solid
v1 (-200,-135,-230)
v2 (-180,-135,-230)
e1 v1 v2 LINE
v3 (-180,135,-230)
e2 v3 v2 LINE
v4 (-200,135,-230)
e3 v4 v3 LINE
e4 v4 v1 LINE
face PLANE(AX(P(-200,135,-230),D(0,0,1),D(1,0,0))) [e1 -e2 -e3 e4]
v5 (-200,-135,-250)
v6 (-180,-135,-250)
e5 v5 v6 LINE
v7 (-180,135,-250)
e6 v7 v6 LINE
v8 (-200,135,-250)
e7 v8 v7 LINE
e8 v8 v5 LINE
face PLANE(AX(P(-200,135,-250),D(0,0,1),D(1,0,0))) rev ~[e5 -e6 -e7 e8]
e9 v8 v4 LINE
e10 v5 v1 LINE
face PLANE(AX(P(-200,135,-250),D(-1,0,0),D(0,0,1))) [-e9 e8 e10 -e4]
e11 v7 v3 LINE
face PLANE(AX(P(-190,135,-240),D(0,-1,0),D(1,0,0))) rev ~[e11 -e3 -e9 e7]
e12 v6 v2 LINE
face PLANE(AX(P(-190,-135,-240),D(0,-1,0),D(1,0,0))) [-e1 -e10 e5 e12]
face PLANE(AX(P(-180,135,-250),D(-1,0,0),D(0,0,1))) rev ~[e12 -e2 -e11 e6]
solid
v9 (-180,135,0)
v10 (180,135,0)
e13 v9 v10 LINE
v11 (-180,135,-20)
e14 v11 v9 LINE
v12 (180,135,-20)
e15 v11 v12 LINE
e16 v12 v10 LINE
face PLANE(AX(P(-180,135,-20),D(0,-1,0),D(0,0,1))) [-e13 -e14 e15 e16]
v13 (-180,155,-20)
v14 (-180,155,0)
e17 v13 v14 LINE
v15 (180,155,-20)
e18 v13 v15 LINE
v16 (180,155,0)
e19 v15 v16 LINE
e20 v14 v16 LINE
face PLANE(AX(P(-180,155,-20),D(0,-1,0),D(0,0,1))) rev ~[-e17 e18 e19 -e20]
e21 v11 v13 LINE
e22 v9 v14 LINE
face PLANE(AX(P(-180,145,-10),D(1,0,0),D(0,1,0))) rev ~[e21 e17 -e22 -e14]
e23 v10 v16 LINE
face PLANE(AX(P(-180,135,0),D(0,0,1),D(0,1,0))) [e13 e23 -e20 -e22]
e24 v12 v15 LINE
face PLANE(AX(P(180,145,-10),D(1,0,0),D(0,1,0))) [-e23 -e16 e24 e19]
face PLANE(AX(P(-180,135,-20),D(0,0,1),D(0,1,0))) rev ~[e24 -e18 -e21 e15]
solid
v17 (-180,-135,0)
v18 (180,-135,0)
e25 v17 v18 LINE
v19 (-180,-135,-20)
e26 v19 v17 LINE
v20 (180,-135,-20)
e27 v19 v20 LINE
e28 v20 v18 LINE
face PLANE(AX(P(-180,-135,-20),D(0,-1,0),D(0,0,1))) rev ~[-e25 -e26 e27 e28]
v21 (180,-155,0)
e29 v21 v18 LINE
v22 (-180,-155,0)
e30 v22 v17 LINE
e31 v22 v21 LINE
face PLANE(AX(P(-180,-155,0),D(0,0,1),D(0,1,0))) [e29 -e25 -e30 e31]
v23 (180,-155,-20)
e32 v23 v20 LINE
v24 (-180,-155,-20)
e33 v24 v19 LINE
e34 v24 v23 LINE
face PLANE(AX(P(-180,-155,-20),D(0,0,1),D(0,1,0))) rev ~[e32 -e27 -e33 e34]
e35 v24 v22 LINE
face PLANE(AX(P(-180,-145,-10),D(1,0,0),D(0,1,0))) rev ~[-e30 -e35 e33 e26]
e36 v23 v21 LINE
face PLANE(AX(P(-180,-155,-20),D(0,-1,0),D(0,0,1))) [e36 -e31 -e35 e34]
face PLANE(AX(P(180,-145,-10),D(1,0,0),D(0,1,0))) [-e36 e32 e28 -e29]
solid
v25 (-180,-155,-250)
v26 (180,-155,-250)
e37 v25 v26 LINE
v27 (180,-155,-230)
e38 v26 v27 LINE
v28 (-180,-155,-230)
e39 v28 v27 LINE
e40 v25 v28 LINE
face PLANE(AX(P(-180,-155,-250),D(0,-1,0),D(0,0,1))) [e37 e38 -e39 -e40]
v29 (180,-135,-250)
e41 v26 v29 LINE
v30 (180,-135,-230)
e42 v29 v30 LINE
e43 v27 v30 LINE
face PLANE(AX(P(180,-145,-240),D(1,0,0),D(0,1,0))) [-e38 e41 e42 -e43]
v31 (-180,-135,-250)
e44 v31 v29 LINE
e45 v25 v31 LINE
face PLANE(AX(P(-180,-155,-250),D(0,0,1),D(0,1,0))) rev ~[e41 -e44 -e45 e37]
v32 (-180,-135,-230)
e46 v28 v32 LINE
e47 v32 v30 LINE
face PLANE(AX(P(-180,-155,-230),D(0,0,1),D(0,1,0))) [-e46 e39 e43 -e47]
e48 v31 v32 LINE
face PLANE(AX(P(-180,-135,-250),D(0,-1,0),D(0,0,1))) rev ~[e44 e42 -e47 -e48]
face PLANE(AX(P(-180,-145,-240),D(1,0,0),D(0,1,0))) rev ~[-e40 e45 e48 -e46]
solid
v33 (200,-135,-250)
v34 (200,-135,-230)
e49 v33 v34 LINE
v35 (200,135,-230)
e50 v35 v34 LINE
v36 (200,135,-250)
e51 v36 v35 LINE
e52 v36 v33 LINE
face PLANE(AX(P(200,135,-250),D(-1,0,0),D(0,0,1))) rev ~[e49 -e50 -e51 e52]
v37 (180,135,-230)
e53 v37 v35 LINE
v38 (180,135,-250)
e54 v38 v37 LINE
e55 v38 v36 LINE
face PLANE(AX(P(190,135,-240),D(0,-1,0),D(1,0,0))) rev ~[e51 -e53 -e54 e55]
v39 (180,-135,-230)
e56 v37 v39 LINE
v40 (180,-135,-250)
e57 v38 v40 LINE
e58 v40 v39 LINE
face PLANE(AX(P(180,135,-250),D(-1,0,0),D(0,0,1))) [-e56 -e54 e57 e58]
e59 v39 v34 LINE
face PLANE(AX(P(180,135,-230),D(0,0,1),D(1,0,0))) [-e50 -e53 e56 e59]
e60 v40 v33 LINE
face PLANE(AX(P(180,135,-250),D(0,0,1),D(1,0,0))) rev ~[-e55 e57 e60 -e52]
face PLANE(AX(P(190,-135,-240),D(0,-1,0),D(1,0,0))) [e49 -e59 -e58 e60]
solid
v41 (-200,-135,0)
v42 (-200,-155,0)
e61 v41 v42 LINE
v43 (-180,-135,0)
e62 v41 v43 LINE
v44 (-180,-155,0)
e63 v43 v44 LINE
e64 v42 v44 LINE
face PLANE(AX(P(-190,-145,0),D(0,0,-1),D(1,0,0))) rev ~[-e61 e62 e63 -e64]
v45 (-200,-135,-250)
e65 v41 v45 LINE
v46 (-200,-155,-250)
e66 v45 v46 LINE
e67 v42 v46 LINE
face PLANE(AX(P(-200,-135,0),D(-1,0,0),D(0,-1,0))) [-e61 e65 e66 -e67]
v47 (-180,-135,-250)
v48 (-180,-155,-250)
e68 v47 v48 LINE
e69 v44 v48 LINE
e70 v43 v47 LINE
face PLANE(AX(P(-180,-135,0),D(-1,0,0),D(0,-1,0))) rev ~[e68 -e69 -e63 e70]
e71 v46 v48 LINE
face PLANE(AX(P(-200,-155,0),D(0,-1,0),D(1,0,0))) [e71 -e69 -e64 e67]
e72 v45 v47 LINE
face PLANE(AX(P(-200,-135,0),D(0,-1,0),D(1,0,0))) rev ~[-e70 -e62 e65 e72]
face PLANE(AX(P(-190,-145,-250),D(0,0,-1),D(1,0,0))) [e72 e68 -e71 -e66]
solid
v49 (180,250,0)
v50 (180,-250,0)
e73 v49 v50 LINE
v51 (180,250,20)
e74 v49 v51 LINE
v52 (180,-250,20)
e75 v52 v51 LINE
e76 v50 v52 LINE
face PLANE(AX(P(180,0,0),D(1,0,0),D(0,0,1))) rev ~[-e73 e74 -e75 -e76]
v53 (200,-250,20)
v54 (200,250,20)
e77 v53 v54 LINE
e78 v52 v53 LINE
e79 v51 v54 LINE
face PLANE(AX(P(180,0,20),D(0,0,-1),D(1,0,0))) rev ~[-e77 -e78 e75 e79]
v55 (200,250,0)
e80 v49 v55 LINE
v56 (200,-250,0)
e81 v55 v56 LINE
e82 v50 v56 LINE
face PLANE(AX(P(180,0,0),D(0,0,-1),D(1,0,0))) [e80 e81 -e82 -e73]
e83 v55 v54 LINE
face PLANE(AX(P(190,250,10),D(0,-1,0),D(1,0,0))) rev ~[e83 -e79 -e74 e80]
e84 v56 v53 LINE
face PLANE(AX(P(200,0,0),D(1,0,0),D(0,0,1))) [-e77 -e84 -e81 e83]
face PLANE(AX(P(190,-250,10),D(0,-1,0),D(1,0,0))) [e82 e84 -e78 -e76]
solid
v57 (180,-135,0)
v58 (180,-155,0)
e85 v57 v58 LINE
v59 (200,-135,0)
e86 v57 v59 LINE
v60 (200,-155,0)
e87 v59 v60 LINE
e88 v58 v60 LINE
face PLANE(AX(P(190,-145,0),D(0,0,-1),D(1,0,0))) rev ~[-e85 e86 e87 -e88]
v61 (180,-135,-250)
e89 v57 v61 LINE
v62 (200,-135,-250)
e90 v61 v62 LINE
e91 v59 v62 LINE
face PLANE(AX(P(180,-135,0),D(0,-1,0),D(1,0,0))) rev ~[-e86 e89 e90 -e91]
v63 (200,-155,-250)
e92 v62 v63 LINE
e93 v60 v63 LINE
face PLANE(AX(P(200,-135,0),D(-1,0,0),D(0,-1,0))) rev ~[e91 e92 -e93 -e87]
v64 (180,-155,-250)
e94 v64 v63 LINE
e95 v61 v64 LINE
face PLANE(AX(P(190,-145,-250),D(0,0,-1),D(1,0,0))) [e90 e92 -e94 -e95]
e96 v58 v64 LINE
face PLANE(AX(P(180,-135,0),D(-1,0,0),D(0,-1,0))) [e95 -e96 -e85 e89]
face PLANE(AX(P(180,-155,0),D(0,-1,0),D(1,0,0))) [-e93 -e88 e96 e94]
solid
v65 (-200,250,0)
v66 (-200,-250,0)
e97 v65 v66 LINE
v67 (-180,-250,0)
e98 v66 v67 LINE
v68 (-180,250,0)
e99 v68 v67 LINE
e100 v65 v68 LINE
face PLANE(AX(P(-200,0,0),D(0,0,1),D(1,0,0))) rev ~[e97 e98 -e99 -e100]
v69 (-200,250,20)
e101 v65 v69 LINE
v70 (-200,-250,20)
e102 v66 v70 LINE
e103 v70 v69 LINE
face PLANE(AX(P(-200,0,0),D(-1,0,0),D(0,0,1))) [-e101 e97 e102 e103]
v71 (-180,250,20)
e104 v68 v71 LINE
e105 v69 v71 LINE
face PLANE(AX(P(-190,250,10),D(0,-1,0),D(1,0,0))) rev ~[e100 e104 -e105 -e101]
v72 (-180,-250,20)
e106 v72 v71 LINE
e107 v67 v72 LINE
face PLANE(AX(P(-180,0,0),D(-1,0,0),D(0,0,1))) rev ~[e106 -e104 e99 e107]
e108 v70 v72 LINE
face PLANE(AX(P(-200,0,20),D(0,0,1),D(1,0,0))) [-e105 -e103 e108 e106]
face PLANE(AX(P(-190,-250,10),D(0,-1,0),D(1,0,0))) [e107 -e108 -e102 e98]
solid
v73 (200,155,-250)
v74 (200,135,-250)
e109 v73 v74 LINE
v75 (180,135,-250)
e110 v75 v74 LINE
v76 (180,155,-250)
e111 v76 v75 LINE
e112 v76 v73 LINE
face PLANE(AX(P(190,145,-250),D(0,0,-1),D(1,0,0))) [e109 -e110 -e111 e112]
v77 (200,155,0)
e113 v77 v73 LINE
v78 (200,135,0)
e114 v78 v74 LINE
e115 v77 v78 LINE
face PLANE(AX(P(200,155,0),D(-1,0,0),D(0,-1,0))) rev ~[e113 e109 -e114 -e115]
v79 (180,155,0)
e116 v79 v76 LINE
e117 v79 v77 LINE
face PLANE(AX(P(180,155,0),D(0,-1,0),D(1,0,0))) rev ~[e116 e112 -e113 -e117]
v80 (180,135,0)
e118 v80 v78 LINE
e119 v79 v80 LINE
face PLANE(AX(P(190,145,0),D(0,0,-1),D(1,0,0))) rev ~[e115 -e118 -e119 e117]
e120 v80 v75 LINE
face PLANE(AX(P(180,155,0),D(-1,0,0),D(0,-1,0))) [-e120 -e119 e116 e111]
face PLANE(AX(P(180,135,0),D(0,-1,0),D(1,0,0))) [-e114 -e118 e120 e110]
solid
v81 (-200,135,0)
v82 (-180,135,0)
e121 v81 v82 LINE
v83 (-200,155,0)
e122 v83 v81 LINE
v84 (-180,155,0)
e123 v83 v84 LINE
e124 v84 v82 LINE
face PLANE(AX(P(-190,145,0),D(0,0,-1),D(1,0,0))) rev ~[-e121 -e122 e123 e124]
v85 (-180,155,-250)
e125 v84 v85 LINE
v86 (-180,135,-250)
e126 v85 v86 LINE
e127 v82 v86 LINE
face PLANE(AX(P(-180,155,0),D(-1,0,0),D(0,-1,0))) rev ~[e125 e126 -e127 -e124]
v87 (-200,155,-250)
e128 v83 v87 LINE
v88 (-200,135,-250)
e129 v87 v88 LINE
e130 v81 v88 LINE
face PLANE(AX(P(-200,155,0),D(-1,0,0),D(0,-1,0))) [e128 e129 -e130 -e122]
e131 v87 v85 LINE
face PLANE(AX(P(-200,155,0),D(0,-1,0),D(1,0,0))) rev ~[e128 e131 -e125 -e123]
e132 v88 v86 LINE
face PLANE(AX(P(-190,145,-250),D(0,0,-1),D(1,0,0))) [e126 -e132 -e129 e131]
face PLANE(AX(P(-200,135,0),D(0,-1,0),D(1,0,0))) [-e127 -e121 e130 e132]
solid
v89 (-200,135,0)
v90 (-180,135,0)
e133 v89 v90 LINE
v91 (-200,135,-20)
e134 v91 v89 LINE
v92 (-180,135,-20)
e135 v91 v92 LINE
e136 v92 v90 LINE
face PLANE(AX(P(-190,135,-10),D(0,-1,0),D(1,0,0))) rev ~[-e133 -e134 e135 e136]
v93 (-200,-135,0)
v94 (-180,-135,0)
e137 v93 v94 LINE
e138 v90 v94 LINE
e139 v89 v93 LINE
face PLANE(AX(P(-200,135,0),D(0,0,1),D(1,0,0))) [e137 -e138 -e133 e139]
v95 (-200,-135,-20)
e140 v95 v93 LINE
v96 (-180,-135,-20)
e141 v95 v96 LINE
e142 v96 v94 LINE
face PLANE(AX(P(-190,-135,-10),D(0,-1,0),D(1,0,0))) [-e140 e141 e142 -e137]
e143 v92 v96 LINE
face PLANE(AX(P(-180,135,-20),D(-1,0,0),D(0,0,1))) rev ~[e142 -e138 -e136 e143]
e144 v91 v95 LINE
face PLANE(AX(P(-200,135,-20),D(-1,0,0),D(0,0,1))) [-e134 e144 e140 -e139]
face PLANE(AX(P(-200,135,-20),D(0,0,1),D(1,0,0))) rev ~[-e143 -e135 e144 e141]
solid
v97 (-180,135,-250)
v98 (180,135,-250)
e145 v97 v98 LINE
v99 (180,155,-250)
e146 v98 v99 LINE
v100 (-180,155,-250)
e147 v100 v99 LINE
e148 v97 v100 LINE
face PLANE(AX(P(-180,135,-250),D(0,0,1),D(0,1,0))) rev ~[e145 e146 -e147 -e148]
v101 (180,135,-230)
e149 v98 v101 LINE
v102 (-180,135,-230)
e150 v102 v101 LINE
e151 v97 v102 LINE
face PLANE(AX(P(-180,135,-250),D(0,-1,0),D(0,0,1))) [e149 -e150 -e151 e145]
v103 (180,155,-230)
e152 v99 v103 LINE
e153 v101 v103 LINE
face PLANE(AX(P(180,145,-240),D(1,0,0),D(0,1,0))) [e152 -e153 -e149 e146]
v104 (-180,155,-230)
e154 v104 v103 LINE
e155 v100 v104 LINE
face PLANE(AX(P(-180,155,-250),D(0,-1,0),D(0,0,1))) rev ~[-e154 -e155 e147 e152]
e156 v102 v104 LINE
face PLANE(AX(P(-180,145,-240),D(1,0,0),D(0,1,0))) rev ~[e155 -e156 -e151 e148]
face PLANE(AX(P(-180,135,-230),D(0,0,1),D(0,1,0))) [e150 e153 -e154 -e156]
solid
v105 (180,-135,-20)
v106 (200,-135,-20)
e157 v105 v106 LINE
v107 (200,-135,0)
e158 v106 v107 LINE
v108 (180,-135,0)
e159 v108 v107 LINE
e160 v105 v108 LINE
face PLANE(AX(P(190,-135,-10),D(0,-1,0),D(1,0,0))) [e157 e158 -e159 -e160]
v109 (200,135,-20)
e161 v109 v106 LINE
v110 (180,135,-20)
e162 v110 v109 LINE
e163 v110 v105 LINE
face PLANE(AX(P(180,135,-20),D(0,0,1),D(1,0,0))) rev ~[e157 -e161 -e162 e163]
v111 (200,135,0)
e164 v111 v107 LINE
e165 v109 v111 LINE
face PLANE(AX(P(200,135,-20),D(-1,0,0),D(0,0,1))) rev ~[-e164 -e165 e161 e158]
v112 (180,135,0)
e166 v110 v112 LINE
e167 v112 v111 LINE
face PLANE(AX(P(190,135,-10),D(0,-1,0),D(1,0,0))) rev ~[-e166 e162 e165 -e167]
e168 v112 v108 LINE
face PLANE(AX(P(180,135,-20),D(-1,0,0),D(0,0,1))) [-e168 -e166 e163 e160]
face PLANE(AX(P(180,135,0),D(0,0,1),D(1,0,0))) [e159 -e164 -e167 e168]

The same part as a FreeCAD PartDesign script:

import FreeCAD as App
import Part
import Sketcher

V = App.Vector
Q = App.Units.Quantity


def add_polygon(sketch, points):
    """Adds a closed chain of lines whose ends are joined by coincident constraints."""
    first, n = sketch.GeometryCount, len(points)
    for a, b in zip(points, points[1:] + points[:1]):
        sketch.addGeometry(Part.LineSegment(App.Vector(*a, 0), App.Vector(*b, 0)), False)
    for i in range(n):
        sketch.addConstraint(Sketcher.Constraint("Coincident", first + i, 2, first + (i + 1) % n, 1))

doc = App.newDocument("Part")
body = doc.addObject("PartDesign::Body", "Body")
body.AllowCompound = True

# Sketch on XZ plane
sketch1 = body.newObject("Sketcher::SketchObject", "Sketch")
sketch1.AttachmentSupport = (doc.getObject("XZ_Plane"), [""])
sketch1.MapMode = "FlatFace"
add_polygon(sketch1, [(-200, 20), (-200, 0), (-180, 0), (-180, 20)])  # lines 0-3
add_polygon(sketch1, [(180, 20), (180, 0), (200, 0), (200, 20)])  # lines 4-7
sketch1.addConstraint(Sketcher.Constraint("Vertical", 0))
sketch1.addConstraint(Sketcher.Constraint("Horizontal", 1))
sketch1.addConstraint(Sketcher.Constraint("Vertical", 2))
sketch1.addConstraint(Sketcher.Constraint("Horizontal", 3))
sketch1.addConstraint(Sketcher.Constraint("Vertical", 4))
sketch1.addConstraint(Sketcher.Constraint("Horizontal", 5))
sketch1.addConstraint(Sketcher.Constraint("Vertical", 6))
sketch1.addConstraint(Sketcher.Constraint("Horizontal", 7))
sketch1.addConstraint(Sketcher.Constraint("Symmetric", 1, 2, 4, 2, -1, 1))
sketch1.addConstraint(Sketcher.Constraint("Symmetric", 0, 2, 5, 2, -2))
sketch1.addConstraint(Sketcher.Constraint("Horizontal", 3, 2, 6, 2))
sketch1.addConstraint(Sketcher.Constraint("Equal", 7, 0))
sketch1.addConstraint(Sketcher.Constraint("DistanceX", 1, 1, 1, 2, Q("20 mm")))
sketch1.addConstraint(Sketcher.Constraint("DistanceX", 0, 2, -1, 1, Q("200 mm")))
pad1 = body.newObject("PartDesign::Pad", "Pad")
pad1.Profile = sketch1
pad1.Length = 500
pad1.Midplane = True
body2 = doc.addObject("PartDesign::Body", "Body001")
body2.AllowCompound = True

# Sketch on XY plane
sketch2 = body2.newObject("Sketcher::SketchObject", "Sketch001")
sketch2.AttachmentSupport = (doc.getObject("XY_Plane001"), [""])
sketch2.MapMode = "FlatFace"
add_polygon(sketch2, [(-200, -155), (-200, -135), (-180, -135), (-180, -155)])  # lines 0-3
add_polygon(sketch2, [(180, -155), (180, -135), (200, -135), (200, -155)])  # lines 4-7
add_polygon(sketch2, [(180, 135), (180, 155), (200, 155), (200, 135)])  # lines 8-11
add_polygon(sketch2, [(-200, 135), (-200, 155), (-180, 155), (-180, 135)])  # lines 12-15
sketch2.addConstraint(Sketcher.Constraint("Vertical", 0))
sketch2.addConstraint(Sketcher.Constraint("Horizontal", 1))
sketch2.addConstraint(Sketcher.Constraint("Vertical", 2))
sketch2.addConstraint(Sketcher.Constraint("Horizontal", 3))
sketch2.addConstraint(Sketcher.Constraint("Vertical", 4))
sketch2.addConstraint(Sketcher.Constraint("Horizontal", 5))
sketch2.addConstraint(Sketcher.Constraint("Vertical", 6))
sketch2.addConstraint(Sketcher.Constraint("Horizontal", 7))
sketch2.addConstraint(Sketcher.Constraint("Vertical", 8))
sketch2.addConstraint(Sketcher.Constraint("Horizontal", 9))
sketch2.addConstraint(Sketcher.Constraint("Vertical", 10))
sketch2.addConstraint(Sketcher.Constraint("Horizontal", 11))
sketch2.addConstraint(Sketcher.Constraint("Vertical", 12))
sketch2.addConstraint(Sketcher.Constraint("Horizontal", 13))
sketch2.addConstraint(Sketcher.Constraint("Vertical", 14))
sketch2.addConstraint(Sketcher.Constraint("Horizontal", 15))
sketch2.addConstraint(Sketcher.Constraint("Symmetric", 2, 2, 8, 2, -1, 1))
sketch2.addConstraint(Sketcher.Constraint("Symmetric", 0, 2, 10, 2, -1, 1))
sketch2.addConstraint(Sketcher.Constraint("Symmetric", 6, 2, 12, 2, -1, 1))
sketch2.addConstraint(Sketcher.Constraint("Symmetric", 4, 2, 14, 2, -1, 1))
sketch2.addConstraint(Sketcher.Constraint("Symmetric", 1, 2, 4, 2, -2))
sketch2.addConstraint(Sketcher.Constraint("Symmetric", 3, 2, 6, 2, -2))
sketch2.addConstraint(Sketcher.Constraint("Equal", 15, 0))
sketch2.addConstraint(Sketcher.Constraint("DistanceX", 1, 1, 1, 2, Q("20 mm")))
sketch2.addConstraint(Sketcher.Constraint("DistanceX", 0, 2, -1, 1, Q("200 mm")))
sketch2.addConstraint(Sketcher.Constraint("DistanceY", 0, 2, -1, 1, Q("135 mm")))
pad2 = body2.newObject("PartDesign::Pad", "Pad001")
pad2.Profile = sketch2
pad2.Length = 250
pad2.Reversed = True
body3 = doc.addObject("PartDesign::Body", "Body002")
body3.AllowCompound = True

# Sketch on XZ plane
sketch3 = body3.newObject("Sketcher::SketchObject", "Sketch002")
sketch3.AttachmentSupport = (doc.getObject("XZ_Plane002"), [""])
sketch3.MapMode = "FlatFace"
sketch3.AttachmentOffset = App.Placement(V(0, 0, -135), App.Rotation())
add_polygon(sketch3, [(-200, 0), (-200, -20), (-180, -20), (-180, 0)])  # lines 0-3
add_polygon(sketch3, [(-200, -230), (-200, -250), (-180, -250), (-180, -230)])  # lines 4-7
add_polygon(sketch3, [(180, 0), (180, -20), (200, -20), (200, 0)])  # lines 8-11
add_polygon(sketch3, [(180, -230), (180, -250), (200, -250), (200, -230)])  # lines 12-15
sketch3.addConstraint(Sketcher.Constraint("Vertical", 0))
sketch3.addConstraint(Sketcher.Constraint("Horizontal", 1))
sketch3.addConstraint(Sketcher.Constraint("Vertical", 2))
sketch3.addConstraint(Sketcher.Constraint("Horizontal", 3))
sketch3.addConstraint(Sketcher.Constraint("Vertical", 4))
sketch3.addConstraint(Sketcher.Constraint("Horizontal", 5))
sketch3.addConstraint(Sketcher.Constraint("Vertical", 6))
sketch3.addConstraint(Sketcher.Constraint("Horizontal", 7))
sketch3.addConstraint(Sketcher.Constraint("Vertical", 8))
sketch3.addConstraint(Sketcher.Constraint("Horizontal", 9))
sketch3.addConstraint(Sketcher.Constraint("Vertical", 10))
sketch3.addConstraint(Sketcher.Constraint("Horizontal", 11))
sketch3.addConstraint(Sketcher.Constraint("Vertical", 12))
sketch3.addConstraint(Sketcher.Constraint("Horizontal", 13))
sketch3.addConstraint(Sketcher.Constraint("Vertical", 14))
sketch3.addConstraint(Sketcher.Constraint("Horizontal", 15))
sketch3.addConstraint(Sketcher.Constraint("Symmetric", 3, 2, 10, 2, -1, 1))
sketch3.addConstraint(Sketcher.Constraint("Symmetric", 1, 2, 8, 2, -2))
sketch3.addConstraint(Sketcher.Constraint("Symmetric", 5, 2, 12, 2, -2))
sketch3.addConstraint(Sketcher.Constraint("Symmetric", 7, 2, 14, 2, -2))
sketch3.addConstraint(Sketcher.Constraint("PointOnObject", 2, 2, -1))
sketch3.addConstraint(Sketcher.Constraint("Vertical", 3, 2, 4, 2))
sketch3.addConstraint(Sketcher.Constraint("Vertical", 2, 2, 5, 2))
sketch3.addConstraint(Sketcher.Constraint("Equal", 15, 0))
sketch3.addConstraint(Sketcher.Constraint("Equal", 2, 4))
sketch3.addConstraint(Sketcher.Constraint("DistanceX", 1, 1, 1, 2, Q("20 mm")))
sketch3.addConstraint(Sketcher.Constraint("DistanceX", 0, 2, -1, 1, Q("200 mm")))
sketch3.addConstraint(Sketcher.Constraint("DistanceY", 4, 2, -1, 1, Q("250 mm")))
pad3 = body3.newObject("PartDesign::Pad", "Pad002")
pad3.Profile = sketch3
pad3.Length = 270
body4 = doc.addObject("PartDesign::Body", "Body003")
body4.AllowCompound = True

# Sketch on YZ plane
sketch4 = body4.newObject("Sketcher::SketchObject", "Sketch003")
sketch4.AttachmentSupport = (doc.getObject("YZ_Plane003"), [""])
sketch4.MapMode = "FlatFace"
sketch4.AttachmentOffset = App.Placement(V(0, 0, -180), App.Rotation())
add_polygon(sketch4, [(135, 0), (135, -20), (155, -20), (155, 0)])  # lines 0-3
add_polygon(sketch4, [(135, -230), (135, -250), (155, -250), (155, -230)])  # lines 4-7
add_polygon(sketch4, [(-155, -230), (-155, -250), (-135, -250), (-135, -230)])  # lines 8-11
add_polygon(sketch4, [(-155, 0), (-155, -20), (-135, -20), (-135, 0)])  # lines 12-15
sketch4.addConstraint(Sketcher.Constraint("Vertical", 0))
sketch4.addConstraint(Sketcher.Constraint("Horizontal", 1))
sketch4.addConstraint(Sketcher.Constraint("Vertical", 2))
sketch4.addConstraint(Sketcher.Constraint("Horizontal", 3))
sketch4.addConstraint(Sketcher.Constraint("Vertical", 4))
sketch4.addConstraint(Sketcher.Constraint("Horizontal", 5))
sketch4.addConstraint(Sketcher.Constraint("Vertical", 6))
sketch4.addConstraint(Sketcher.Constraint("Horizontal", 7))
sketch4.addConstraint(Sketcher.Constraint("Vertical", 8))
sketch4.addConstraint(Sketcher.Constraint("Horizontal", 9))
sketch4.addConstraint(Sketcher.Constraint("Vertical", 10))
sketch4.addConstraint(Sketcher.Constraint("Horizontal", 11))
sketch4.addConstraint(Sketcher.Constraint("Vertical", 12))
sketch4.addConstraint(Sketcher.Constraint("Horizontal", 13))
sketch4.addConstraint(Sketcher.Constraint("Vertical", 14))
sketch4.addConstraint(Sketcher.Constraint("Horizontal", 15))
sketch4.addConstraint(Sketcher.Constraint("Symmetric", 3, 2, 14, 2, -1, 1))
sketch4.addConstraint(Sketcher.Constraint("Symmetric", 5, 2, 8, 2, -2))
sketch4.addConstraint(Sketcher.Constraint("Symmetric", 7, 2, 10, 2, -2))
sketch4.addConstraint(Sketcher.Constraint("Symmetric", 1, 2, 12, 2, -2))
sketch4.addConstraint(Sketcher.Constraint("PointOnObject", 2, 2, -1))
sketch4.addConstraint(Sketcher.Constraint("Vertical", 3, 2, 4, 2))
sketch4.addConstraint(Sketcher.Constraint("Vertical", 2, 2, 5, 2))
sketch4.addConstraint(Sketcher.Constraint("Equal", 15, 0))
sketch4.addConstraint(Sketcher.Constraint("Equal", 2, 4))
sketch4.addConstraint(Sketcher.Constraint("DistanceX", 1, 1, 1, 2, Q("20 mm")))
sketch4.addConstraint(Sketcher.Constraint("DistanceX", -1, 1, 0, 2, Q("135 mm")))
sketch4.addConstraint(Sketcher.Constraint("DistanceY", 4, 2, -1, 1, Q("250 mm")))
pad4 = body4.newObject("PartDesign::Pad", "Pad003")
pad4.Profile = sketch4
pad4.Length = 360

doc.recompute()
